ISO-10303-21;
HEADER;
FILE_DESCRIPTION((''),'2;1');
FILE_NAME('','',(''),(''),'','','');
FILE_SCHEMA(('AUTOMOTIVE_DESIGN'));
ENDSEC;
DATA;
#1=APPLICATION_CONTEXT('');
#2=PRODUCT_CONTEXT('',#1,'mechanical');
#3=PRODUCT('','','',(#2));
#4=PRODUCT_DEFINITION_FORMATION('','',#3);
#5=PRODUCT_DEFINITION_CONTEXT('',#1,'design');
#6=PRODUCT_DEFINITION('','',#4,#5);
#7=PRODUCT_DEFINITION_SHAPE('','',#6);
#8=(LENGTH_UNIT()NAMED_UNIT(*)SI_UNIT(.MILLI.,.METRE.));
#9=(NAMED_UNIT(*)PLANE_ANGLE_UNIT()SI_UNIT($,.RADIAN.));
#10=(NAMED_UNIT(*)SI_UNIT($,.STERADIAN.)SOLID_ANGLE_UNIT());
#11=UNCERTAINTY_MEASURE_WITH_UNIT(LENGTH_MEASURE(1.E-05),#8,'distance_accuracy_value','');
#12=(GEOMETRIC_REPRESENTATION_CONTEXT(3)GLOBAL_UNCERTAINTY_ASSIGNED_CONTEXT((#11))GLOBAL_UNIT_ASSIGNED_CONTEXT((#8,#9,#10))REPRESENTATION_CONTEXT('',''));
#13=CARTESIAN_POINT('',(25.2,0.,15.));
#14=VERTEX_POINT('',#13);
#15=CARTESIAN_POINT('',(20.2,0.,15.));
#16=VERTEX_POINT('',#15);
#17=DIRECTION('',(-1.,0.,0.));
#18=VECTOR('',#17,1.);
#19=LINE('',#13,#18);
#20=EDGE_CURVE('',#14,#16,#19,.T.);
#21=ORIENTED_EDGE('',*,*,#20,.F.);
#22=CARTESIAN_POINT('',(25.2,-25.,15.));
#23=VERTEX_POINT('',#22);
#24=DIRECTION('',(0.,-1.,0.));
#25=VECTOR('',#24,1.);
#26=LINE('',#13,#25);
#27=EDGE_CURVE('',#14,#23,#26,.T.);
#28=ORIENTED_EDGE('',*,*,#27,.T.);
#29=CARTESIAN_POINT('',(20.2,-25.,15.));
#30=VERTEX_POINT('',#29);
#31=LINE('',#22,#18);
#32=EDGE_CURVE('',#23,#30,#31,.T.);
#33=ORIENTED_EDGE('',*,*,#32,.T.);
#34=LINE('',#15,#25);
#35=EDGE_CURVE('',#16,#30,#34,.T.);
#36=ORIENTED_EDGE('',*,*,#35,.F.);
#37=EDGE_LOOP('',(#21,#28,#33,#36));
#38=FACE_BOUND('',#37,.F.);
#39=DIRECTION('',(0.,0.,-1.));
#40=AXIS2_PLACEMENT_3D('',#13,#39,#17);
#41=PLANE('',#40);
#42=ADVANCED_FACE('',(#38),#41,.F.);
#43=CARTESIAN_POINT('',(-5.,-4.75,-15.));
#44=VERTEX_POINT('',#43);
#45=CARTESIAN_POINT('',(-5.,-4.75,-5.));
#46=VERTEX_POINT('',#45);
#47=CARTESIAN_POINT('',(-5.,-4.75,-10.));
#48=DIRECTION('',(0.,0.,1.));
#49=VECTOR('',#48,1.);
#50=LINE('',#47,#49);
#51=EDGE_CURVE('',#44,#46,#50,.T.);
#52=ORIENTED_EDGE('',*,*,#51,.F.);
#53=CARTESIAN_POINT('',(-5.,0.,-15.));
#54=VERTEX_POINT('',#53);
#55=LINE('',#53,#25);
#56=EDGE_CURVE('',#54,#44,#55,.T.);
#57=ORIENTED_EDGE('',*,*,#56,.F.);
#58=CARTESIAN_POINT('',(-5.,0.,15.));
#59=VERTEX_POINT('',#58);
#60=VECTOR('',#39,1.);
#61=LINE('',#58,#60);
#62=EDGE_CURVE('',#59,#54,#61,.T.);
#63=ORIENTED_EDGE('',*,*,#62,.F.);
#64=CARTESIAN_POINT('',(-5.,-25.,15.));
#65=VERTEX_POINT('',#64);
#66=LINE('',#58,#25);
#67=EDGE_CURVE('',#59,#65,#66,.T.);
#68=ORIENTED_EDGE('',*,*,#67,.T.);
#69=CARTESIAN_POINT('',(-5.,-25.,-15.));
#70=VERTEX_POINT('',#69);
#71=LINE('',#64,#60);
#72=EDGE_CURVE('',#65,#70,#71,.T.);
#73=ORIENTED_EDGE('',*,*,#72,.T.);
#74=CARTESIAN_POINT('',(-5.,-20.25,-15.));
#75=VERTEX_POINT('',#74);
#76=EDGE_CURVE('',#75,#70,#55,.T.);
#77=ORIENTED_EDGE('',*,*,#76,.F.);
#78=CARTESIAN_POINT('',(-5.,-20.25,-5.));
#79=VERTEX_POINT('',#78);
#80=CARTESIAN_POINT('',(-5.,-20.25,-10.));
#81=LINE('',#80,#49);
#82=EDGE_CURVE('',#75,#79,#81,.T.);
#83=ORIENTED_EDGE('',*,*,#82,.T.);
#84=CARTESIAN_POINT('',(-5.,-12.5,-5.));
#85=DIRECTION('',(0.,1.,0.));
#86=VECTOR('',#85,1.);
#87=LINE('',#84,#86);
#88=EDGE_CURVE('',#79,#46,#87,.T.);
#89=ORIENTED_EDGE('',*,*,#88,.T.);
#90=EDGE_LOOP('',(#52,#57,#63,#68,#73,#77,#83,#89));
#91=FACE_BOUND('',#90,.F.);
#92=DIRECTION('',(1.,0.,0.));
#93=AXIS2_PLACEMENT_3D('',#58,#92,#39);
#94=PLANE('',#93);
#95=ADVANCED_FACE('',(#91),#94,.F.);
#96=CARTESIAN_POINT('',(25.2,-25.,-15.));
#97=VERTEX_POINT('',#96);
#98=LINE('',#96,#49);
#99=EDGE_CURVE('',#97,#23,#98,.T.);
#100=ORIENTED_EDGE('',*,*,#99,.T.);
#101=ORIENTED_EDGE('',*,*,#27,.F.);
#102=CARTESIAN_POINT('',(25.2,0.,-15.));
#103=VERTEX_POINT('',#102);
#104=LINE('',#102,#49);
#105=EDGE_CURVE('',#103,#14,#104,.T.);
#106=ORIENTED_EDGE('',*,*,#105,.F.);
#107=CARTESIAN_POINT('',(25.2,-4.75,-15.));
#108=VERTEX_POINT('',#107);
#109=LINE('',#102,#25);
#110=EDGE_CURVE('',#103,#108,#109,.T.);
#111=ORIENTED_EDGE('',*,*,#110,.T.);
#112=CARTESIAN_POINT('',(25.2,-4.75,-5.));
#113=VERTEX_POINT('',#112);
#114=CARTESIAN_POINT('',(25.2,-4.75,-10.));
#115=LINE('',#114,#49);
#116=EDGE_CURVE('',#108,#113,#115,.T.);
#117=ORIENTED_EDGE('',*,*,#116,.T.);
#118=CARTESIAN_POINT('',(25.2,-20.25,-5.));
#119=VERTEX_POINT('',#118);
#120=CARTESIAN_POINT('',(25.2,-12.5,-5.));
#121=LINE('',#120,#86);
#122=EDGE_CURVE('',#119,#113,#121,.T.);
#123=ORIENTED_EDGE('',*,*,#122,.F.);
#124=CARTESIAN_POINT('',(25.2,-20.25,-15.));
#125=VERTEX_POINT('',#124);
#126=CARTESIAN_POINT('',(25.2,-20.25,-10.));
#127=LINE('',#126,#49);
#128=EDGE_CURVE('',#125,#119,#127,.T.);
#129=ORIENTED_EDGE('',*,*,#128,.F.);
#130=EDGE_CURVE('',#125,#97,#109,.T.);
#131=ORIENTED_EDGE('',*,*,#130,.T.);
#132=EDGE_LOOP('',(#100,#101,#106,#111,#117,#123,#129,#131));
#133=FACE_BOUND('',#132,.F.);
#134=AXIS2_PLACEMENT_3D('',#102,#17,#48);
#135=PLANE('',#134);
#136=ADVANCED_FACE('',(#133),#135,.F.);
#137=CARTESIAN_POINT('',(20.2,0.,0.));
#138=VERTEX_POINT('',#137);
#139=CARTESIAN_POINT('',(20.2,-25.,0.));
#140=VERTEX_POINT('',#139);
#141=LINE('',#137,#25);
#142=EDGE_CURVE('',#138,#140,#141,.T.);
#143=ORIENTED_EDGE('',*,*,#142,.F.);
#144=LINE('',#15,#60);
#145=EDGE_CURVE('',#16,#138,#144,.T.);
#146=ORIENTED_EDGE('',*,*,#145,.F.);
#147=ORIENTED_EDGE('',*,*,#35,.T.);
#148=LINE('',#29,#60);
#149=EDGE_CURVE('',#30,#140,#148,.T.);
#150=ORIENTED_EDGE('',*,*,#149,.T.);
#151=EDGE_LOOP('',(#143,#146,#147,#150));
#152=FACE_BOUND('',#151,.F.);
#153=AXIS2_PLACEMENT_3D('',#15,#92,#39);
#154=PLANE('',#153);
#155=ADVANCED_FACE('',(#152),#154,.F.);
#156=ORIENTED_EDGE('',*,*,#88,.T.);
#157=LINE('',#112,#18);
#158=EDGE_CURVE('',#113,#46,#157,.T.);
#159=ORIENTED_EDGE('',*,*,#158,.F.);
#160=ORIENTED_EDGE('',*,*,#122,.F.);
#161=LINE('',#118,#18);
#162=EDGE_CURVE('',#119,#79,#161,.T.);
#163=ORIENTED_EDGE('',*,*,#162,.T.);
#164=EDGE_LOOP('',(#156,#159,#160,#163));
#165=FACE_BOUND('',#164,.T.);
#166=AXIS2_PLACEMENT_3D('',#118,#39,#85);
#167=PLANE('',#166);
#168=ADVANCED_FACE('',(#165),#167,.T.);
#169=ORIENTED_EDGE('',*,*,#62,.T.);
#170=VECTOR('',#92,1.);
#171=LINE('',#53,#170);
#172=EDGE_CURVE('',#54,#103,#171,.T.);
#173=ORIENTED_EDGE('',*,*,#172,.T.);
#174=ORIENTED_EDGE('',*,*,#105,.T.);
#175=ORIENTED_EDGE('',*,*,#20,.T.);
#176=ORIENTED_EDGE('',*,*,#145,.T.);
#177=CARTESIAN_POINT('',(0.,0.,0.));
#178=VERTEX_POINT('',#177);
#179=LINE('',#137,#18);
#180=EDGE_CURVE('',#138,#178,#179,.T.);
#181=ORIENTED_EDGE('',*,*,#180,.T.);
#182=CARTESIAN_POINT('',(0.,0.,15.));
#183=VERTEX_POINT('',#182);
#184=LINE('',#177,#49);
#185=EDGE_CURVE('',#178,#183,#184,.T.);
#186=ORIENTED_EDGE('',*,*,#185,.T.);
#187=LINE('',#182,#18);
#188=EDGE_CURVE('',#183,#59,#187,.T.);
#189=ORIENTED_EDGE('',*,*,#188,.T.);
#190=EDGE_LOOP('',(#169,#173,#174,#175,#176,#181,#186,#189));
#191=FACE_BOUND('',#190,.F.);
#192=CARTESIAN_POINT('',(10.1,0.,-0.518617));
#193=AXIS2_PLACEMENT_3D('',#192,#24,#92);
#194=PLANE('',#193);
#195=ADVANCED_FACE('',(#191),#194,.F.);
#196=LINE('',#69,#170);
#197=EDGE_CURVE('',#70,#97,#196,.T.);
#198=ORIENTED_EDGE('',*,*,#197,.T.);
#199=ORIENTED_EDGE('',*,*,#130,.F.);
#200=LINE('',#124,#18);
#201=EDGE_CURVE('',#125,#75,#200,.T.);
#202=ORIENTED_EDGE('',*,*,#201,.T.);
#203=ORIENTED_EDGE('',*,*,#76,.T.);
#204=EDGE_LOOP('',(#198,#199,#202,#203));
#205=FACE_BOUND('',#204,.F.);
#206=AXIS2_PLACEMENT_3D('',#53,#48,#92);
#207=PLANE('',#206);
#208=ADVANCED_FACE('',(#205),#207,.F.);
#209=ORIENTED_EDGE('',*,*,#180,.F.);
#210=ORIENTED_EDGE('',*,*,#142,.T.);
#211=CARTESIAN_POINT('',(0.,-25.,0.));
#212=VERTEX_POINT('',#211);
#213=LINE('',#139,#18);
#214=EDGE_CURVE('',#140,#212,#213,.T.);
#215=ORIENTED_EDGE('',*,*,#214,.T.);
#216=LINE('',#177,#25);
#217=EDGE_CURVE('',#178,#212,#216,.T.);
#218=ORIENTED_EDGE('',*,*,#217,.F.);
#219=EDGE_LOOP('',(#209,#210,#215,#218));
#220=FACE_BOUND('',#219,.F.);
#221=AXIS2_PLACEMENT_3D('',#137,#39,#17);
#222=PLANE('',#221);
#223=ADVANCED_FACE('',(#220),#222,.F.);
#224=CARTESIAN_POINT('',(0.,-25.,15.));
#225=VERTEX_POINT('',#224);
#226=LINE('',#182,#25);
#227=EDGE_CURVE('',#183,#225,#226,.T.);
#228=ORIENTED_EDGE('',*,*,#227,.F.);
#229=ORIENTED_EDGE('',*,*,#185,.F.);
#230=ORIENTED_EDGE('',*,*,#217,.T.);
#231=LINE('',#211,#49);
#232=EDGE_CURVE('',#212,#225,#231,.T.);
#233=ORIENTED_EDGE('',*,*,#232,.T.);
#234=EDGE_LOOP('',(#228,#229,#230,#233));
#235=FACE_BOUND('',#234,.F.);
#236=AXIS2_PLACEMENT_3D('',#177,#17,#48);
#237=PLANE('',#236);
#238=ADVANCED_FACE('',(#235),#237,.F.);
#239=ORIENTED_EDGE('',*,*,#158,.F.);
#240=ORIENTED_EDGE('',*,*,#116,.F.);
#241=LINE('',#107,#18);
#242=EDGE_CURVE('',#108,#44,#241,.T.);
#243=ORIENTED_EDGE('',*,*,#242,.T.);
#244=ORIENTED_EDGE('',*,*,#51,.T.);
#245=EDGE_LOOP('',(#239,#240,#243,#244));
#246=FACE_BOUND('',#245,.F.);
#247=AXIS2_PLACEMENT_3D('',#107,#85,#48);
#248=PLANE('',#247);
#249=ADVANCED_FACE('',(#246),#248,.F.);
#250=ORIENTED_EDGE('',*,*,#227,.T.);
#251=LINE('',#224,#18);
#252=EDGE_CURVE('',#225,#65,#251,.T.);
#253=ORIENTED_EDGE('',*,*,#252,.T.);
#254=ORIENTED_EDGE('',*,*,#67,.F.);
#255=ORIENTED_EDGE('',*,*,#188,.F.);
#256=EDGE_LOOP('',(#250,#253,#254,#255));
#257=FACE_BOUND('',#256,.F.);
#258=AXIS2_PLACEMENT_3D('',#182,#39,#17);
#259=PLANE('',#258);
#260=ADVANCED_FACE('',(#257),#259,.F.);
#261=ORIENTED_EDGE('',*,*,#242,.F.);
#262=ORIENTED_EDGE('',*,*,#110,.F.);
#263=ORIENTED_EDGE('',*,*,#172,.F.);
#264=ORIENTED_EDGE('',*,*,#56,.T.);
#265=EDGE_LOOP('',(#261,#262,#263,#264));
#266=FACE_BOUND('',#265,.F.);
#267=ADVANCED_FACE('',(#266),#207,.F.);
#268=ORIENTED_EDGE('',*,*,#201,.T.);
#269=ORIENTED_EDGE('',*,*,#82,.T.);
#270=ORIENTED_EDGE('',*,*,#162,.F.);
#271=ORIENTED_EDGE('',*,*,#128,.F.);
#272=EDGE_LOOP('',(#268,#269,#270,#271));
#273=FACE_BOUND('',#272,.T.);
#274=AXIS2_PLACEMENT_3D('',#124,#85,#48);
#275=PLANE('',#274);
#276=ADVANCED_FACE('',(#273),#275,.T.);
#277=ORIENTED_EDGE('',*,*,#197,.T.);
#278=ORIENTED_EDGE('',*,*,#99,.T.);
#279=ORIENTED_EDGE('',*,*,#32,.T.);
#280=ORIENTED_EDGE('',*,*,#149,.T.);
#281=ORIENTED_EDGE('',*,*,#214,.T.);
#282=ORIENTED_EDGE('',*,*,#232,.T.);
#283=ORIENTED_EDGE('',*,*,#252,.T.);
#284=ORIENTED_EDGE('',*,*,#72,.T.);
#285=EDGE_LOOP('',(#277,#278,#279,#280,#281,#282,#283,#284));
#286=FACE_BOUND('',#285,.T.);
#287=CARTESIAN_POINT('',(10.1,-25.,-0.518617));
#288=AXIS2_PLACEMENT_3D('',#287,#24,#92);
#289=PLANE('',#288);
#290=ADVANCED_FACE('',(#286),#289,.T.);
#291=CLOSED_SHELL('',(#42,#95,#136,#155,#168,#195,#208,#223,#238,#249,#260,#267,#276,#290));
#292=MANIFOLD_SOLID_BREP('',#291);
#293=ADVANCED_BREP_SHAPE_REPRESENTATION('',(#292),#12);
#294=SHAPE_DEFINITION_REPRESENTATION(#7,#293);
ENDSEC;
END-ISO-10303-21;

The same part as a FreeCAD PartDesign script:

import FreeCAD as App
import Part
import Sketcher
Q = App.Units.Quantity


def add_polygon(sketch, points):
    """Adds a closed chain of lines whose ends are joined by coincident constraints."""
    first, n = sketch.GeometryCount, len(points)
    for a, b in zip(points, points[1:] + points[:1]):
        sketch.addGeometry(Part.LineSegment(App.Vector(*a, 0), App.Vector(*b, 0)), False)
    for i in range(n):
        sketch.addConstraint(Sketcher.Constraint("Coincident", first + i, 2, first + (i + 1) % n, 1))

doc = App.newDocument("Part")
body = doc.addObject("PartDesign::Body", "Body")

sketch1 = doc.addObject("Sketcher::SketchObject", "Sketch")
body.addObject(sketch1)
sketch1.AttachmentSupport = (doc.XZ_Plane, [""])
sketch1.MapMode = "FlatFace"
add_polygon(sketch1, [(20, 0), (0, 0), (0, 15), (-5, 15), (-5, -15), (25, -15), (25, 15), (20, 15)])
sketch1.addConstraint([
    Sketcher.Constraint("Horizontal", 0),
    Sketcher.Constraint("Vertical", 1),
    Sketcher.Constraint("Horizontal", 2),
    Sketcher.Constraint("Vertical", 3),
    Sketcher.Constraint("Horizontal", 4),
    Sketcher.Constraint("Vertical", 5),
    Sketcher.Constraint("Horizontal", 6),
    Sketcher.Constraint("Vertical", 7),
    Sketcher.Constraint("Coincident", 0, 2, -1, 1),
    Sketcher.Constraint("Horizontal", 2, 2, 5, 2),
    Sketcher.Constraint("Equal", 2, 6),
    Sketcher.Constraint("DistanceX", 2, 2, 2, 1, Q("5 mm")),
    Sketcher.Constraint("DistanceY", 1, 1, 1, 2, Q("15 mm")),
    Sketcher.Constraint("DistanceY", 3, 2, 3, 1, Q("30 mm")),
    Sketcher.Constraint("DistanceX", 0, 2, 0, 1, Q("20.2 mm")),
])
pad1 = doc.addObject("PartDesign::Pad", "Pad")
body.addObject(pad1)
pad1.Profile = sketch1
pad1.Length = 25

sketch2 = doc.addObject("Sketcher::SketchObject", "Sketch001")
body.addObject(sketch2)
sketch2.AttachmentSupport = (doc.YZ_Plane, [""])
sketch2.MapMode = "FlatFace"
sketch2.AttachmentOffset = App.Placement(App.Vector(0, 0, 25.2), App.Rotation())
add_polygon(sketch2, [(-20, -5), (-20, -15), (-5, -15), (-5, -5)])
sketch2.addConstraint([
    Sketcher.Constraint("Vertical", 0),
    Sketcher.Constraint("Horizontal", 1),
    Sketcher.Constraint("Vertical", 2),
    Sketcher.Constraint("Horizontal", 3),
    Sketcher.Constraint("DistanceY", 0, 2, 0, 1, Q("10 mm")),
    Sketcher.Constraint("DistanceX", 1, 1, 1, 2, Q("15.5 mm")),
    Sketcher.Constraint("DistanceY", 0, 2, -1, 1, Q("15 mm")),
    Sketcher.Constraint("DistanceX", 0, 2, -1, 1, Q("20.25 mm")),
])
pocket1 = doc.addObject("PartDesign::Pocket", "Pocket")
body.addObject(pocket1)
pocket1.Profile = sketch2
pocket1.Type = "ThroughAll"

doc.recompute()
